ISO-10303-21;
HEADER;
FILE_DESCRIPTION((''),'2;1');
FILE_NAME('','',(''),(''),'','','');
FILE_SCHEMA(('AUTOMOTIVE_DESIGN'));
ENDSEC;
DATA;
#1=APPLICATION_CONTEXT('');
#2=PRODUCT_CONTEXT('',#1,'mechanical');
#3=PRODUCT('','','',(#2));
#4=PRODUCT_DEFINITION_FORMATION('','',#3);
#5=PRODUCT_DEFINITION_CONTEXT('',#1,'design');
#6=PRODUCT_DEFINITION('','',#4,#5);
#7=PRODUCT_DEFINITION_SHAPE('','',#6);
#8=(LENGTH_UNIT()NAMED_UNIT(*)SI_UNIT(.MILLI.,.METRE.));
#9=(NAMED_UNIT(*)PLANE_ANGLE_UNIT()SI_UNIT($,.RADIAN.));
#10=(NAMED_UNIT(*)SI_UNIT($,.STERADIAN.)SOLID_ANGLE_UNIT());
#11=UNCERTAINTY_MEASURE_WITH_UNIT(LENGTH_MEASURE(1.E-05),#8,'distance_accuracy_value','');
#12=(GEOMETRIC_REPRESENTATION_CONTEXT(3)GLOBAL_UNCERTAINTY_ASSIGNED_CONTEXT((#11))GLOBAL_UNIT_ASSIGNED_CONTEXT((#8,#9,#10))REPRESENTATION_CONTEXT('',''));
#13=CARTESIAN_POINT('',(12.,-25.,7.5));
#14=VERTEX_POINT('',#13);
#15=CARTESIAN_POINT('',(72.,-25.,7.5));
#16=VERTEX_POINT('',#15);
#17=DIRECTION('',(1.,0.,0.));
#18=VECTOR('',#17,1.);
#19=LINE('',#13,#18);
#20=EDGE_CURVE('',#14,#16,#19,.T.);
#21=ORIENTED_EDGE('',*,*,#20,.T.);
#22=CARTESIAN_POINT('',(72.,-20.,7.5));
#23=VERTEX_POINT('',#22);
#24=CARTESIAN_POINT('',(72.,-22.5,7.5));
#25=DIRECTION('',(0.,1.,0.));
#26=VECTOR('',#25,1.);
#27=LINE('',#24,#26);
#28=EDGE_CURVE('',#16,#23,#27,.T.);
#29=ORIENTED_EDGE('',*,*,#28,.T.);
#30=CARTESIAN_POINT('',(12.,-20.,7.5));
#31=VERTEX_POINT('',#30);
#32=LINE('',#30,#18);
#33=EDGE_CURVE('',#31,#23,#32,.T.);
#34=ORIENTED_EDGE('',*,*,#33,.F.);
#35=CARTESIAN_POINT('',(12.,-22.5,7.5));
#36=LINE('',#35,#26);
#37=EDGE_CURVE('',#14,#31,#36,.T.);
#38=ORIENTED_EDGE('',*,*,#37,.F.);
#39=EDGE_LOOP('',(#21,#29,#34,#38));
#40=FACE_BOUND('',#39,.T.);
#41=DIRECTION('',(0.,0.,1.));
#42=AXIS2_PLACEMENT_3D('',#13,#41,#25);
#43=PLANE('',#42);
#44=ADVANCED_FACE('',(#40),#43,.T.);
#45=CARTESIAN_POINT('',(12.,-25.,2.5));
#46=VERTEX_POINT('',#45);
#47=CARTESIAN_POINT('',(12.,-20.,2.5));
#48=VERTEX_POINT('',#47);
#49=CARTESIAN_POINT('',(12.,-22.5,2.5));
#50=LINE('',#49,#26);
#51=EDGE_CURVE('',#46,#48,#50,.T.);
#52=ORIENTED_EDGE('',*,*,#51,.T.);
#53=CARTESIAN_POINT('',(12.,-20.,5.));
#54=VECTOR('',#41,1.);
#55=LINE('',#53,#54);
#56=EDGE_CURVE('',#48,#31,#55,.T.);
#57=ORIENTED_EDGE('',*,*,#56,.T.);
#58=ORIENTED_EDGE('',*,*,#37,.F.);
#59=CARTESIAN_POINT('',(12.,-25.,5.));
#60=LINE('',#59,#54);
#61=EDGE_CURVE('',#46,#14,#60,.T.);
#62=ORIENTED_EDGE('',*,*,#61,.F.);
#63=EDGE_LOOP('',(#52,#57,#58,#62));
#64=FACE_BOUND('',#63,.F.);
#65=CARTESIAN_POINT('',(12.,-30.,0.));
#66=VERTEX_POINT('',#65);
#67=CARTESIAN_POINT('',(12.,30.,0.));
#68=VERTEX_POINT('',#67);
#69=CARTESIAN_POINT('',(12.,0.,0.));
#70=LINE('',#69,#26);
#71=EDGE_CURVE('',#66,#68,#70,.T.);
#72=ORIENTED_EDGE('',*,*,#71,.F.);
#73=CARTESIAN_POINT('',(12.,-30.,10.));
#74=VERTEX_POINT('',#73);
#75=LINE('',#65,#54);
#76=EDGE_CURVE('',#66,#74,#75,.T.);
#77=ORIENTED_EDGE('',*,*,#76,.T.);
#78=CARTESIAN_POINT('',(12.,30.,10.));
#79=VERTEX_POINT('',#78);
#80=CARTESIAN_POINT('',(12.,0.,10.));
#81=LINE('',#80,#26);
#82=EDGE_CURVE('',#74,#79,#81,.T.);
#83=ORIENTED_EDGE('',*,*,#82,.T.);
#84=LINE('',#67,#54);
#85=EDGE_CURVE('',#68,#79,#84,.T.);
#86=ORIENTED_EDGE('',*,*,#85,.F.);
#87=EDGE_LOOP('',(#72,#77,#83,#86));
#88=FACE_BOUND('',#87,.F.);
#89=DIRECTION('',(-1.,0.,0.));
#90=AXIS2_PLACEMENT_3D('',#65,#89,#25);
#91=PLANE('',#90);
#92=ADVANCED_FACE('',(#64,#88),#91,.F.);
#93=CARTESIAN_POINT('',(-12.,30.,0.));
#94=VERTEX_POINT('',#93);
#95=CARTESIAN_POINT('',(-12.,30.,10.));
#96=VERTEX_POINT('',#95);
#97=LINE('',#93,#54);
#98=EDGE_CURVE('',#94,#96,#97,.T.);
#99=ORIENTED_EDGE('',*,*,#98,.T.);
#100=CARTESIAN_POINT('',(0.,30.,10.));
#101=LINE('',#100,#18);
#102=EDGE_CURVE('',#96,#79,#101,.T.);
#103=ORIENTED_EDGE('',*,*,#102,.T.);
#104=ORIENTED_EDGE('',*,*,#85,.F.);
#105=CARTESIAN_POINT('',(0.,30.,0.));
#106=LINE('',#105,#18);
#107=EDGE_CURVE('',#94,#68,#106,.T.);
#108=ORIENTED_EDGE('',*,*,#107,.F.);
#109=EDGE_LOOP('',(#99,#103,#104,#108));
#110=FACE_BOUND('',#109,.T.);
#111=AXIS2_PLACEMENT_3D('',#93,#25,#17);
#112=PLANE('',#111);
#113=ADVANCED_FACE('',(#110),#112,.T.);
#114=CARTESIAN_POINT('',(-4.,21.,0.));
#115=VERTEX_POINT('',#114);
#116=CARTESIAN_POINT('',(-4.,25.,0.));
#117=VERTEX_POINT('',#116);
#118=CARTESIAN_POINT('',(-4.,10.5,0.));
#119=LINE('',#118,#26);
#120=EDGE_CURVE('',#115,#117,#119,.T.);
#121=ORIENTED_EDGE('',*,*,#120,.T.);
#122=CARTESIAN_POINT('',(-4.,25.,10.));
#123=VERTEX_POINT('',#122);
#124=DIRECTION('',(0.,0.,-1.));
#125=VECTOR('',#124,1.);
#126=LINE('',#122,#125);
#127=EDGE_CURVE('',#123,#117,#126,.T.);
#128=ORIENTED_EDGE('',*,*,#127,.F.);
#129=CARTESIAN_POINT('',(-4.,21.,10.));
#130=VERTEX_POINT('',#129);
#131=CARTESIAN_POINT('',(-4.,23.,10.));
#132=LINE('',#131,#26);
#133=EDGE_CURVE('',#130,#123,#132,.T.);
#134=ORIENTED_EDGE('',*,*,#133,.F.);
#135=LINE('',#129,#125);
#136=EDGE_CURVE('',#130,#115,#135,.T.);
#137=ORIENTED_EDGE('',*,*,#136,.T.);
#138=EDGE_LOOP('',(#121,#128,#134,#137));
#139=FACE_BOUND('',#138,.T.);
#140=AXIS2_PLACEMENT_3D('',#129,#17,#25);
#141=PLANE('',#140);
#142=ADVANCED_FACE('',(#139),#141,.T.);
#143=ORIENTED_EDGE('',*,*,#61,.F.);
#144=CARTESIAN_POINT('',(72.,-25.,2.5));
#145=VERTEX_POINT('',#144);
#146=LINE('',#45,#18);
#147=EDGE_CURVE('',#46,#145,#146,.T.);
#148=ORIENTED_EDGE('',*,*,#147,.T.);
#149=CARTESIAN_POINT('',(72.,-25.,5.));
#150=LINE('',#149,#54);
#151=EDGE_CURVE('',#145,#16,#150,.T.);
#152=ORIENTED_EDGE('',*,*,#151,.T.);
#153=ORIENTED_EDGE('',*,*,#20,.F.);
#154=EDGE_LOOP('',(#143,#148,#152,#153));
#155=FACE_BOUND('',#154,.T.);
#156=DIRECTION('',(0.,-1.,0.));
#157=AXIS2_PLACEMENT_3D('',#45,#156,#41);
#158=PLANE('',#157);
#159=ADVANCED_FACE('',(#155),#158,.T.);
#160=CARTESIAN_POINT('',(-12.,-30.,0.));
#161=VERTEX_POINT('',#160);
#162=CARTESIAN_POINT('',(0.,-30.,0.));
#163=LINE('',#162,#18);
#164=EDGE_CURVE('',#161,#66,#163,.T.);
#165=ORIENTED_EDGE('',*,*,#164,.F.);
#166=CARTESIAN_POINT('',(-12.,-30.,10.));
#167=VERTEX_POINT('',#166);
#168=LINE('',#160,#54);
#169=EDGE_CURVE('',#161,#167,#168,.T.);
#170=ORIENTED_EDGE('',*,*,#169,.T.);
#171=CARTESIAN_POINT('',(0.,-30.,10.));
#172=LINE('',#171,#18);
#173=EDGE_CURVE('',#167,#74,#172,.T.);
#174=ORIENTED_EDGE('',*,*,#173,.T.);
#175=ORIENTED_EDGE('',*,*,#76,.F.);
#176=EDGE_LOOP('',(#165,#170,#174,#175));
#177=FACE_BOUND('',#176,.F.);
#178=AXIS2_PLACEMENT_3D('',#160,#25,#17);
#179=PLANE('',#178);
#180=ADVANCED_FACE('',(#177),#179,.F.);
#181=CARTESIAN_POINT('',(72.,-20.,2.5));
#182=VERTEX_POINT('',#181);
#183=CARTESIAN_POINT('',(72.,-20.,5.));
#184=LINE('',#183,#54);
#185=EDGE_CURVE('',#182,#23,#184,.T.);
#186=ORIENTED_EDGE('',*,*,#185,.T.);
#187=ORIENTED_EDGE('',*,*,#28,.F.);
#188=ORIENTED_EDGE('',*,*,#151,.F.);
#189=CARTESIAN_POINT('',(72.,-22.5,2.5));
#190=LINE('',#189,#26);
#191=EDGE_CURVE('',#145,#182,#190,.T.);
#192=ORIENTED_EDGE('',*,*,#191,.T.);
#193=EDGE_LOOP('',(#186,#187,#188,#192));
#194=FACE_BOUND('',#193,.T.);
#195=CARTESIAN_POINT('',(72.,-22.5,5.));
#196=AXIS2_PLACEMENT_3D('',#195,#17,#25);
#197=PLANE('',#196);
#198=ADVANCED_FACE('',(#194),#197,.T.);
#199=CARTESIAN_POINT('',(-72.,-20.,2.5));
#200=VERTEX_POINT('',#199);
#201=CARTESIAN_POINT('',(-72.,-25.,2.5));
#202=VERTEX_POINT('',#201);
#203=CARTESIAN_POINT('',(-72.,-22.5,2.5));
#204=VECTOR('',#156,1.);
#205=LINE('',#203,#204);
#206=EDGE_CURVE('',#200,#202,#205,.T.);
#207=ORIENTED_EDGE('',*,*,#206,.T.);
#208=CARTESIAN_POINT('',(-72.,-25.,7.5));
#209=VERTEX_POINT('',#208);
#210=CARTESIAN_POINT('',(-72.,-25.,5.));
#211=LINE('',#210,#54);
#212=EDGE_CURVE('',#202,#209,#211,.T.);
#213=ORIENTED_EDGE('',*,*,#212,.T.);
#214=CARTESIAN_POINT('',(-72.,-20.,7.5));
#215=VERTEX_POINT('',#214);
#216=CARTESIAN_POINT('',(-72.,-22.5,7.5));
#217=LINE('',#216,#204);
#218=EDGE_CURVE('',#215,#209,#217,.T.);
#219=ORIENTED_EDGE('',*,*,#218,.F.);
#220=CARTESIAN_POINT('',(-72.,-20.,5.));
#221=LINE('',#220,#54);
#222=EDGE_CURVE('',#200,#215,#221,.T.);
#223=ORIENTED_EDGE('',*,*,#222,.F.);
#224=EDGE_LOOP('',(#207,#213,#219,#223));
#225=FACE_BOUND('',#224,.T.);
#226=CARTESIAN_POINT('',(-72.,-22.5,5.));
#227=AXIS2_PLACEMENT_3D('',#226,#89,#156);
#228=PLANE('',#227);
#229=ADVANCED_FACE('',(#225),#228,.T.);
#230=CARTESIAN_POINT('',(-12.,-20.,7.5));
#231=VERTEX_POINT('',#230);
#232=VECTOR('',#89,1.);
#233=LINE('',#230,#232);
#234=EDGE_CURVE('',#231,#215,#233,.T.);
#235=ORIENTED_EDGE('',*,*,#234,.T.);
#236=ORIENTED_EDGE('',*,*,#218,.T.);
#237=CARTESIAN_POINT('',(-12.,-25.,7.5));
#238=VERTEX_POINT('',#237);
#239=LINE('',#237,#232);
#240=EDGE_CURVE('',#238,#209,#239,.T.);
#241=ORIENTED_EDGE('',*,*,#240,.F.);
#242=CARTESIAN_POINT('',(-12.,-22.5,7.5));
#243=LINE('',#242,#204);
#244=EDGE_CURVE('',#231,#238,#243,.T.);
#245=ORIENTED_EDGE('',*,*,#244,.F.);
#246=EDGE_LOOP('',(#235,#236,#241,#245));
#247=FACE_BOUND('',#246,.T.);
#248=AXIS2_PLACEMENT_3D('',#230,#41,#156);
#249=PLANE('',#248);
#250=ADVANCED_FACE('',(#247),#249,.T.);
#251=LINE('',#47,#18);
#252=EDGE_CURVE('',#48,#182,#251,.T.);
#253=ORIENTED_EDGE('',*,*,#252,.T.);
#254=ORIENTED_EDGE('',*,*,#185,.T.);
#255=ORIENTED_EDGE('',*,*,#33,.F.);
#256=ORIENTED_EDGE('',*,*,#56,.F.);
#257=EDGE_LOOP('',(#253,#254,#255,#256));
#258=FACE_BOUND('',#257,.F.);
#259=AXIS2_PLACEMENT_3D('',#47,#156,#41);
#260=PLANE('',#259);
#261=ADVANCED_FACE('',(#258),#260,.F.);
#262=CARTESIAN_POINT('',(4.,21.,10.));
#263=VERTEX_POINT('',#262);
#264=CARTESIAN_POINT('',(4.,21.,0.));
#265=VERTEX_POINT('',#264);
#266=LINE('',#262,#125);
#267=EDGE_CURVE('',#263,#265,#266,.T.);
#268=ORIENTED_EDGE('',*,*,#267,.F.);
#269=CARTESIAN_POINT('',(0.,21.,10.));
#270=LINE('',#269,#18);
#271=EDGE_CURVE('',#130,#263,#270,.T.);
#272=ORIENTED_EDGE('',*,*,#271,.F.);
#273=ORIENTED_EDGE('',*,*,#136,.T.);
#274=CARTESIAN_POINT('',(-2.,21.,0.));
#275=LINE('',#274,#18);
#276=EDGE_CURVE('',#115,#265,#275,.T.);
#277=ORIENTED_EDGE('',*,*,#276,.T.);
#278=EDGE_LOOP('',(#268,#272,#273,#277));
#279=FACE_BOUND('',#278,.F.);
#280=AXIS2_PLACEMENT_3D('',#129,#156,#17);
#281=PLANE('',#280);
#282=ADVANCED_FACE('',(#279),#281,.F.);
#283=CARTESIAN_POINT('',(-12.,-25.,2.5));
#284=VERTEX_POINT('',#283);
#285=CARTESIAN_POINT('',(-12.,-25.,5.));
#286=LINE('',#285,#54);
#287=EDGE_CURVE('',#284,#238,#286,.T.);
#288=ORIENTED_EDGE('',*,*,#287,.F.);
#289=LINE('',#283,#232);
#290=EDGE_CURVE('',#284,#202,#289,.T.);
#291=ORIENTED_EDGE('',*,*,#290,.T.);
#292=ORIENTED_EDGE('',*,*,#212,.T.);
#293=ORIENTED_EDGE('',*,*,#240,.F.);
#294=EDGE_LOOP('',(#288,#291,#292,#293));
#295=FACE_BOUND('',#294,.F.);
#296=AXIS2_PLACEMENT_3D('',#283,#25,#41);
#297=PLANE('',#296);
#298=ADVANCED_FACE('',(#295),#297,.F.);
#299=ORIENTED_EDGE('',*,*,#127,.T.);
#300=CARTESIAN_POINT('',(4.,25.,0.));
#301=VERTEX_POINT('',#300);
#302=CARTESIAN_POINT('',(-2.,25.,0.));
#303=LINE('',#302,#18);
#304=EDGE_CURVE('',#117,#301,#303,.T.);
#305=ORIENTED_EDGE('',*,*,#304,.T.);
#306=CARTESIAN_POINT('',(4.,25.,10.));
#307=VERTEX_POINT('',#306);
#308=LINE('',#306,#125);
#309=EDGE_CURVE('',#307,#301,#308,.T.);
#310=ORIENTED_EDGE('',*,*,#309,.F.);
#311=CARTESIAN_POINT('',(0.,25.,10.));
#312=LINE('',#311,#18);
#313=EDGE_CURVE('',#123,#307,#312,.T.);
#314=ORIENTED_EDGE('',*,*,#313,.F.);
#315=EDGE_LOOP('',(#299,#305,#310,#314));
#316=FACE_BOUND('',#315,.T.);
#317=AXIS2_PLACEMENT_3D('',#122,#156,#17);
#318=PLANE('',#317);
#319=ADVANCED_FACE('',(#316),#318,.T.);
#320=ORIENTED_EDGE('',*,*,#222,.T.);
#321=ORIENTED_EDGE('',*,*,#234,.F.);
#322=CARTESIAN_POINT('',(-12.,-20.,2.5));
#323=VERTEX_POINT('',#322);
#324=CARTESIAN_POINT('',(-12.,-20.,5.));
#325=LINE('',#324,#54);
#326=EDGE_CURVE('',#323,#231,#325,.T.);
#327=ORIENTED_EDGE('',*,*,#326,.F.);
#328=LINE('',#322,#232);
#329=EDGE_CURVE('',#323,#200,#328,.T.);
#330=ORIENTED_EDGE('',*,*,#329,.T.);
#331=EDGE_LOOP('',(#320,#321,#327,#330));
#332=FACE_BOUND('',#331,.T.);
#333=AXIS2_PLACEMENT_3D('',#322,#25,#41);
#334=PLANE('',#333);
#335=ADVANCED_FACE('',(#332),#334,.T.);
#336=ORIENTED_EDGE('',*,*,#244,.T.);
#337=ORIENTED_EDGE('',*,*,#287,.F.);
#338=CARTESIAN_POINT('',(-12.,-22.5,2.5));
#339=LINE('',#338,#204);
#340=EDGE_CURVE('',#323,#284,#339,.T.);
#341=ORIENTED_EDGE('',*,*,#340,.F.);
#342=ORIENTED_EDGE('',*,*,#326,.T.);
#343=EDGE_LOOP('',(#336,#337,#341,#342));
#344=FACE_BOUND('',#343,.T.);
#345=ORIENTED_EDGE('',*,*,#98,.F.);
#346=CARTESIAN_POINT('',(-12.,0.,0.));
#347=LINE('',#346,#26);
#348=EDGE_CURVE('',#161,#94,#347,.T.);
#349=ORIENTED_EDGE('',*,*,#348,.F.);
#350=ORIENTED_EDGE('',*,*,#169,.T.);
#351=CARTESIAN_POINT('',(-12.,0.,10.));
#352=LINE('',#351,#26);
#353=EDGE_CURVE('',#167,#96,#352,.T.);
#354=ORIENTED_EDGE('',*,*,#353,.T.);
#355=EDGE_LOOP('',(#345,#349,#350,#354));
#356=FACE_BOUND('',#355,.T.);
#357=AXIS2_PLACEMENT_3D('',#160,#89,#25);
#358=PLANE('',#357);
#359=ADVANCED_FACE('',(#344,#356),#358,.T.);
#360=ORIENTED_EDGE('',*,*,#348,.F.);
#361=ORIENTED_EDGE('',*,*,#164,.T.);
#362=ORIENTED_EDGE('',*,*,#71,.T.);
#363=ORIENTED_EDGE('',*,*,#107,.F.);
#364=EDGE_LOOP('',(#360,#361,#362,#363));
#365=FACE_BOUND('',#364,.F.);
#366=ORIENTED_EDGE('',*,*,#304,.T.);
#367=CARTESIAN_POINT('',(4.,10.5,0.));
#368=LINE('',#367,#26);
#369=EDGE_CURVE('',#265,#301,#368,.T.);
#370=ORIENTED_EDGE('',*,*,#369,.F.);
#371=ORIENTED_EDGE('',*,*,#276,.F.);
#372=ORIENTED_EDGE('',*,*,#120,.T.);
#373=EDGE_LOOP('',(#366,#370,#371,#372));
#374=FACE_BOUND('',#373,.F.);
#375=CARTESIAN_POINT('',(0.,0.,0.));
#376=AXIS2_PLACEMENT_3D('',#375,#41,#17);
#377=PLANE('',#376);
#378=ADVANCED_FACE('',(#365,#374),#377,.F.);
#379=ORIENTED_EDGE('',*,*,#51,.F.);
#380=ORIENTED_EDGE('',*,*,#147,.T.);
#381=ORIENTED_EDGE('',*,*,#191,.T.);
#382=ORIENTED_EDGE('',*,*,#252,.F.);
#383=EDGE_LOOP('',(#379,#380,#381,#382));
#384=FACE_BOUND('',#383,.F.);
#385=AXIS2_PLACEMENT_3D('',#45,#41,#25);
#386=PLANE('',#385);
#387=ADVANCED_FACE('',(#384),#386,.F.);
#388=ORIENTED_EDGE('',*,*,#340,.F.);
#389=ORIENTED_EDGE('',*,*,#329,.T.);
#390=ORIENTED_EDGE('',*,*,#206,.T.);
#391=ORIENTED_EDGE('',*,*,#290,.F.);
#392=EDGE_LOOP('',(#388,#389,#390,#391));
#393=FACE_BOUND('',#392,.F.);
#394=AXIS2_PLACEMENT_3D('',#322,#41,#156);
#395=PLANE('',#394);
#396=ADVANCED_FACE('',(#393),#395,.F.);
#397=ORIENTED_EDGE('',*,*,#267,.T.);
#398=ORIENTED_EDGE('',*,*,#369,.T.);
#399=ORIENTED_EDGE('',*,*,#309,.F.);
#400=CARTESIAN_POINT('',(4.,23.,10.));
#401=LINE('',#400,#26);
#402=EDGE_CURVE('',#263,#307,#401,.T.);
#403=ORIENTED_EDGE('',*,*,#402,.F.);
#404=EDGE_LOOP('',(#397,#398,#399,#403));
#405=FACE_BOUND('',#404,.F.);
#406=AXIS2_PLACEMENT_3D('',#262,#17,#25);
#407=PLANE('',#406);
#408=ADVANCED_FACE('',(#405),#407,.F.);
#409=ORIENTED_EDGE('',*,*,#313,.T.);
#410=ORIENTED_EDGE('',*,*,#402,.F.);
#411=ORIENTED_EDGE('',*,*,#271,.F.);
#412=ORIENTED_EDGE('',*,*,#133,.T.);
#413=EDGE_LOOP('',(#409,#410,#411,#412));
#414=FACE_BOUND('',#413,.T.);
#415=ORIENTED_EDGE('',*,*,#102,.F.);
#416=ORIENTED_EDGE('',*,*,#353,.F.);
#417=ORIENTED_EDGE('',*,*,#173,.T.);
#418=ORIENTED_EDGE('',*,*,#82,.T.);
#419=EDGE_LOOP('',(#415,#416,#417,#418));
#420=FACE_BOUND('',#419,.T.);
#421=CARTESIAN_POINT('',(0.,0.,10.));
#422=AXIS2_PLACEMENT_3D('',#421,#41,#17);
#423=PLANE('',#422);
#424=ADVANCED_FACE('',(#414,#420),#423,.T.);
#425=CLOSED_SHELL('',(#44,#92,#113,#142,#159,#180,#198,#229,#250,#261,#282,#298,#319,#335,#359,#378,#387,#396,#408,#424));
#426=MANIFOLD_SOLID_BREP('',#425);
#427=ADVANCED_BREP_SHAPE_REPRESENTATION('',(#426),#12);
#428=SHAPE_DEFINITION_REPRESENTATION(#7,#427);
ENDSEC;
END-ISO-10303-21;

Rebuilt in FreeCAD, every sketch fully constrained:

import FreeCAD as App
import Part
import Sketcher

doc = App.newDocument("Part")
body = doc.addObject("PartDesign::Body", "Body")

sketch1 = body.newObject("Sketcher::SketchObject", "Sketch")
sketch1.AttachmentSupport = (doc.getObject("XY_Plane"), [""])
sketch1.MapMode = "FlatFace"
sketch1.addGeometry(Part.LineSegment(App.Vector(-12, 30, 0), App.Vector(-12, -30, 0)), False)
sketch1.addGeometry(Part.LineSegment(App.Vector(-12, -30, 0), App.Vector(12, -30, 0)), False)
sketch1.addGeometry(Part.LineSegment(App.Vector(12, -30, 0), App.Vector(12, 30, 0)), False)
sketch1.addGeometry(Part.LineSegment(App.Vector(12, 30, 0), App.Vector(-12, 30, 0)), False)
sketch1.addConstraint(Sketcher.Constraint("Coincident", 0, 2, 1, 1))
sketch1.addConstraint(Sketcher.Constraint("Coincident", 1, 2, 2, 1))
sketch1.addConstraint(Sketcher.Constraint("Coincident", 2, 2, 3, 1))
sketch1.addConstraint(Sketcher.Constraint("Coincident", 3, 2, 0, 1))
sketch1.addConstraint(Sketcher.Constraint("Vertical", 0))
sketch1.addConstraint(Sketcher.Constraint("Horizontal", 1))
sketch1.addConstraint(Sketcher.Constraint("Vertical", 2))
sketch1.addConstraint(Sketcher.Constraint("Horizontal", 3))
sketch1.addConstraint(Sketcher.Constraint("Symmetric", 0, 2, 2, 2, -1, 1))
sketch1.addConstraint(Sketcher.Constraint("DistanceX", 1, 1, 1, 2, 24.0))
sketch1.addConstraint(Sketcher.Constraint("DistanceY", 0, 2, 0, 1, 60.0))
pad1 = body.newObject("PartDesign::Pad", "Pad")
pad1.Profile = sketch1
pad1.Length = 10

sketch2 = body.newObject("Sketcher::SketchObject", "Sketch001")
sketch2.AttachmentSupport = (doc.getObject("XY_Plane"), [""])
sketch2.MapMode = "FlatFace"
sketch2.AttachmentOffset = App.Placement(App.Vector(0, 0, 10), App.Rotation())
sketch2.addGeometry(Part.LineSegment(App.Vector(-4, 25, 0), App.Vector(-4, 21, 0)), False)
sketch2.addGeometry(Part.LineSegment(App.Vector(-4, 21, 0), App.Vector(4, 21, 0)), False)
sketch2.addGeometry(Part.LineSegment(App.Vector(4, 21, 0), App.Vector(4, 25, 0)), False)
sketch2.addGeometry(Part.LineSegment(App.Vector(4, 25, 0), App.Vector(-4, 25, 0)), False)
sketch2.addConstraint(Sketcher.Constraint("Coincident", 0, 2, 1, 1))
sketch2.addConstraint(Sketcher.Constraint("Coincident", 1, 2, 2, 1))
sketch2.addConstraint(Sketcher.Constraint("Coincident", 2, 2, 3, 1))
sketch2.addConstraint(Sketcher.Constraint("Coincident", 3, 2, 0, 1))
sketch2.addConstraint(Sketcher.Constraint("Vertical", 0))
sketch2.addConstraint(Sketcher.Constraint("Horizontal", 1))
sketch2.addConstraint(Sketcher.Constraint("Vertical", 2))
sketch2.addConstraint(Sketcher.Constraint("Horizontal", 3))
sketch2.addConstraint(Sketcher.Constraint("DistanceX", 1, 1, 1, 2, 8.0))
sketch2.addConstraint(Sketcher.Constraint("DistanceY", 0, 2, 0, 1, 4.0))
sketch2.addConstraint(Sketcher.Constraint("DistanceX", 0, 2, -1, 1, 4.0))
sketch2.addConstraint(Sketcher.Constraint("DistanceY", -1, 1, 0, 2, 21.0))
pocket1 = body.newObject("PartDesign::Pocket", "Pocket")
pocket1.Profile = sketch2
pocket1.Length = 25

sketch3 = body.newObject("Sketcher::SketchObject", "Sketch002")
sketch3.AttachmentSupport = (doc.getObject("YZ_Plane"), [""])
sketch3.MapMode = "FlatFace"
sketch3.AttachmentOffset = App.Placement(App.Vector(0, 0, 12), App.Rotation())
sketch3.addGeometry(Part.LineSegment(App.Vector(-25, 7.5, 0), App.Vector(-25, 2.5, 0)), False)
sketch3.addGeometry(Part.LineSegment(App.Vector(-25, 2.5, 0), App.Vector(-20, 2.5, 0)), False)
sketch3.addGeometry(Part.LineSegment(App.Vector(-20, 2.5, 0), App.Vector(-20, 7.5, 0)), False)
sketch3.addGeometry(Part.LineSegment(App.Vector(-20, 7.5, 0), App.Vector(-25, 7.5, 0)), False)
sketch3.addConstraint(Sketcher.Constraint("Coincident", 0, 2, 1, 1))
sketch3.addConstraint(Sketcher.Constraint("Coincident", 1, 2, 2, 1))
sketch3.addConstraint(Sketcher.Constraint("Coincident", 2, 2, 3, 1))
sketch3.addConstraint(Sketcher.Constraint("Coincident", 3, 2, 0, 1))
sketch3.addConstraint(Sketcher.Constraint("Vertical", 0))
sketch3.addConstraint(Sketcher.Constraint("Horizontal", 1))
sketch3.addConstraint(Sketcher.Constraint("Vertical", 2))
sketch3.addConstraint(Sketcher.Constraint("Horizontal", 3))
sketch3.addConstraint(Sketcher.Constraint("Equal", 3, 0))
sketch3.addConstraint(Sketcher.Constraint("DistanceX", 1, 1, 1, 2, 5.0))
sketch3.addConstraint(Sketcher.Constraint("DistanceX", 0, 2, -1, 1, 25.0))
sketch3.addConstraint(Sketcher.Constraint("DistanceY", -1, 1, 0, 2, 2.5))
pad2 = body.newObject("PartDesign::Pad", "Pad001")
pad2.Profile = sketch3
pad2.Length = 60

sketch4 = body.newObject("Sketcher::SketchObject", "Sketch003")
sketch4.AttachmentSupport = (doc.getObject("YZ_Plane"), [""])
sketch4.MapMode = "FlatFace"
sketch4.AttachmentOffset = App.Placement(App.Vector(0, 0, -12), App.Rotation())
sketch4.addGeometry(Part.LineSegment(App.Vector(-20, 7.5, 0), App.Vector(-20, 2.5, 0)), False)
sketch4.addGeometry(Part.LineSegment(App.Vector(-20, 2.5, 0), App.Vector(-25, 2.5, 0)), False)
sketch4.addGeometry(Part.LineSegment(App.Vector(-25, 2.5, 0), App.Vector(-25, 7.5, 0)), False)
sketch4.addGeometry(Part.LineSegment(App.Vector(-25, 7.5, 0), App.Vector(-20, 7.5, 0)), False)
sketch4.addConstraint(Sketcher.Constraint("Coincident", 0, 2, 1, 1))
sketch4.addConstraint(Sketcher.Constraint("Coincident", 1, 2, 2, 1))
sketch4.addConstraint(Sketcher.Constraint("Coincident", 2, 2, 3, 1))
sketch4.addConstraint(Sketcher.Constraint("Coincident", 3, 2, 0, 1))
sketch4.addConstraint(Sketcher.Constraint("Vertical", 0))
sketch4.addConstraint(Sketcher.Constraint("Horizontal", 1))
sketch4.addConstraint(Sketcher.Constraint("Vertical", 2))
sketch4.addConstraint(Sketcher.Constraint("Horizontal", 3))
sketch4.addConstraint(Sketcher.Constraint("Equal", 3, 0))
sketch4.addConstraint(Sketcher.Constraint("DistanceX", 1, 2, 1, 1, 5.0))
sketch4.addConstraint(Sketcher.Constraint("DistanceX", 0, 2, -1, 1, 20.0))
sketch4.addConstraint(Sketcher.Constraint("DistanceY", -1, 1, 0, 2, 2.5))
pad3 = body.newObject("PartDesign::Pad", "Pad002")
pad3.Profile = sketch4
pad3.Length = 60
pad3.Reversed = True

doc.recompute()
